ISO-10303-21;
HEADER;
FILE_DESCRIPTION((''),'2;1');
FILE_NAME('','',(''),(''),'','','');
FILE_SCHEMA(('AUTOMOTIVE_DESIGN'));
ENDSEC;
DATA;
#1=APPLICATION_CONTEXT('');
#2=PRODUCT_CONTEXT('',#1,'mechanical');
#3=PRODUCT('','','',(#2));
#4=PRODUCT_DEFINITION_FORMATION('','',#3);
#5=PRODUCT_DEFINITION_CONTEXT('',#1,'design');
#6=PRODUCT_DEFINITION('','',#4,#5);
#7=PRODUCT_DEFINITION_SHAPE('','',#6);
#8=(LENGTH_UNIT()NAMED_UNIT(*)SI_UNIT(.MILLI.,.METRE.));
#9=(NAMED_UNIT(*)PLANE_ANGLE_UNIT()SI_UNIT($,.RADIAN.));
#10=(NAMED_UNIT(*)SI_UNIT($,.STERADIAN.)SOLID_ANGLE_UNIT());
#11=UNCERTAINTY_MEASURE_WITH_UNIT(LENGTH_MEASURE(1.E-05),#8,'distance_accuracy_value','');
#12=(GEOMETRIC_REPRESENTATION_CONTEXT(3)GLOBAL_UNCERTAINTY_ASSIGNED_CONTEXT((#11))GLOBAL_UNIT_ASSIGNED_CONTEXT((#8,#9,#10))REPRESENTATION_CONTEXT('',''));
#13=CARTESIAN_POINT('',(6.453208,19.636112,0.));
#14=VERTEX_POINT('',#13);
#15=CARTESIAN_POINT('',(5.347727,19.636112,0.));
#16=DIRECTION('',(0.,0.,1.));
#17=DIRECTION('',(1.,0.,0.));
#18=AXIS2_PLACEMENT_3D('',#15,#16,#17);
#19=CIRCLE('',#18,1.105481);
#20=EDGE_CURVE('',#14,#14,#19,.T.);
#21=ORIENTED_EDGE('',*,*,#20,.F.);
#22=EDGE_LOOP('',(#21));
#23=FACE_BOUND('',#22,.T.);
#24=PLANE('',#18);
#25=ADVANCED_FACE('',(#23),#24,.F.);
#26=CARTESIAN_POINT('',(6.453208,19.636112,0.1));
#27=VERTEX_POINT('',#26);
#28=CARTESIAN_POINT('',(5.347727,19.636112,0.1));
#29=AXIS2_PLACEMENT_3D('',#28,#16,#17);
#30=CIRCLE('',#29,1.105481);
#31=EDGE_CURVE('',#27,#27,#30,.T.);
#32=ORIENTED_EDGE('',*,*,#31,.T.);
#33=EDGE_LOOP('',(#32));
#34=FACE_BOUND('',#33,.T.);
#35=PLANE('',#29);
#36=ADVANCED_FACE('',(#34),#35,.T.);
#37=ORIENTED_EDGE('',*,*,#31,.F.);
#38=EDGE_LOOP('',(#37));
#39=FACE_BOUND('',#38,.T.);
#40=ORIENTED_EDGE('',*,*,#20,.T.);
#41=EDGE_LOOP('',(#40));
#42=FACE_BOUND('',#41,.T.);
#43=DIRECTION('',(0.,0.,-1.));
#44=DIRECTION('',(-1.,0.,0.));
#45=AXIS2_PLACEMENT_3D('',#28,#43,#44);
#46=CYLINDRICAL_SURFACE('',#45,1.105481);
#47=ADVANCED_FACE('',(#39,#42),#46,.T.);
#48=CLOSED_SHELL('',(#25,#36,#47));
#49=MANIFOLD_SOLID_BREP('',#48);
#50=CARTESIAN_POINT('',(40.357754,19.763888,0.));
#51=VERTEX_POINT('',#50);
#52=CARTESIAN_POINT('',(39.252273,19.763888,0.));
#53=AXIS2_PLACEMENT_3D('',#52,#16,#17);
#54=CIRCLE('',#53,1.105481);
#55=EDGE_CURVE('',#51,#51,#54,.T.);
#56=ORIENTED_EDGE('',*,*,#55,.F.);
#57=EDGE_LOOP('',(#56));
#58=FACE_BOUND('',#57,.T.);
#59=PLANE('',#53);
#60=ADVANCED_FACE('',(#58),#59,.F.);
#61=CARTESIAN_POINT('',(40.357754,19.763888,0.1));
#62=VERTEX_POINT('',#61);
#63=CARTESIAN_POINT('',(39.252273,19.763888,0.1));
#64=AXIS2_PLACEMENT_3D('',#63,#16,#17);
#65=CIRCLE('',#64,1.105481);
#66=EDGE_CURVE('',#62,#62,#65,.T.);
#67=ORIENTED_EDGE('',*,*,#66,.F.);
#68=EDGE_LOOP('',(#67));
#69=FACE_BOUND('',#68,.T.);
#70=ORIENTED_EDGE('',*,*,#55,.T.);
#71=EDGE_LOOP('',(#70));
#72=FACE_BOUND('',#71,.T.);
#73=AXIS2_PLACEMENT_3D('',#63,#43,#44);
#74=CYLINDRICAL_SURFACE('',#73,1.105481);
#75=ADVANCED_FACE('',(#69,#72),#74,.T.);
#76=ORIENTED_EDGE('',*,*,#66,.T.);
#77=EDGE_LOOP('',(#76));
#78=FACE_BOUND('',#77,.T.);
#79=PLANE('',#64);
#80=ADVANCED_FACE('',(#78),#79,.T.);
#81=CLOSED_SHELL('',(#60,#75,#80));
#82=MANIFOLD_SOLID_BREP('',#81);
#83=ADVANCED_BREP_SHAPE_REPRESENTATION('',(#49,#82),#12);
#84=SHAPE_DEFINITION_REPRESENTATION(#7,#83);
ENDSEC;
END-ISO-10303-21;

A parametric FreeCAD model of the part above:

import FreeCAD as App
import Part
import Sketcher
from FreeCAD import Vector

doc = App.newDocument("Part")
params = doc.addObject("Spreadsheet::Sheet", "Params")
for row, (alias, value) in enumerate([
    ("pad1_length", "0.1 mm"),
    ("pad2_length", "0.1 mm"),
], start=1):
    params.set(f"A{row}", alias)
    params.set(f"B{row}", "=" + value)
    params.setAlias(f"B{row}", alias)

body = doc.addObject("PartDesign::Body", "Body")

sketch1 = doc.addObject("Sketcher::SketchObject", "Sketch")
body.addObject(sketch1)
sketch1.AttachmentSupport = (doc.XY_Plane, [""])
sketch1.MapMode = "FlatFace"
sketch1.addGeometry(Part.Circle(Vector(39.3, 19.8, 0), Vector(0, 0, 1), 1.1), False)
sketch1.addConstraint(Sketcher.Constraint("Diameter", 0, 2.210962))
sketch1.addConstraint(Sketcher.Constraint("DistanceX", -1, 1, 0, 3, 39.252273))
sketch1.addConstraint(Sketcher.Constraint("DistanceY", -1, 1, 0, 3, 19.763888))
pad1 = doc.addObject("PartDesign::Pad", "Pad")
body.addObject(pad1)
pad1.Profile = sketch1
pad1.setExpression("Length", "Params.pad1_length")
body2 = doc.addObject("PartDesign::Body", "Body001")

sketch2 = doc.addObject("Sketcher::SketchObject", "Sketch001")
body2.addObject(sketch2)
sketch2.AttachmentSupport = (doc.getObject("XY_Plane001"), [""])
sketch2.MapMode = "FlatFace"
sketch2.addGeometry(Part.Circle(Vector(5.3, 19.6, 0), Vector(0, 0, 1), 1.1), False)
sketch2.addConstraint(Sketcher.Constraint("Diameter", 0, 2.210962))
sketch2.addConstraint(Sketcher.Constraint("DistanceX", -1, 1, 0, 3, 5.347727))
sketch2.addConstraint(Sketcher.Constraint("DistanceY", -1, 1, 0, 3, 19.636112))
pad2 = doc.addObject("PartDesign::Pad", "Pad001")
body2.addObject(pad2)
pad2.Profile = sketch2
pad2.setExpression("Length", "Params.pad2_length")

doc.recompute()
